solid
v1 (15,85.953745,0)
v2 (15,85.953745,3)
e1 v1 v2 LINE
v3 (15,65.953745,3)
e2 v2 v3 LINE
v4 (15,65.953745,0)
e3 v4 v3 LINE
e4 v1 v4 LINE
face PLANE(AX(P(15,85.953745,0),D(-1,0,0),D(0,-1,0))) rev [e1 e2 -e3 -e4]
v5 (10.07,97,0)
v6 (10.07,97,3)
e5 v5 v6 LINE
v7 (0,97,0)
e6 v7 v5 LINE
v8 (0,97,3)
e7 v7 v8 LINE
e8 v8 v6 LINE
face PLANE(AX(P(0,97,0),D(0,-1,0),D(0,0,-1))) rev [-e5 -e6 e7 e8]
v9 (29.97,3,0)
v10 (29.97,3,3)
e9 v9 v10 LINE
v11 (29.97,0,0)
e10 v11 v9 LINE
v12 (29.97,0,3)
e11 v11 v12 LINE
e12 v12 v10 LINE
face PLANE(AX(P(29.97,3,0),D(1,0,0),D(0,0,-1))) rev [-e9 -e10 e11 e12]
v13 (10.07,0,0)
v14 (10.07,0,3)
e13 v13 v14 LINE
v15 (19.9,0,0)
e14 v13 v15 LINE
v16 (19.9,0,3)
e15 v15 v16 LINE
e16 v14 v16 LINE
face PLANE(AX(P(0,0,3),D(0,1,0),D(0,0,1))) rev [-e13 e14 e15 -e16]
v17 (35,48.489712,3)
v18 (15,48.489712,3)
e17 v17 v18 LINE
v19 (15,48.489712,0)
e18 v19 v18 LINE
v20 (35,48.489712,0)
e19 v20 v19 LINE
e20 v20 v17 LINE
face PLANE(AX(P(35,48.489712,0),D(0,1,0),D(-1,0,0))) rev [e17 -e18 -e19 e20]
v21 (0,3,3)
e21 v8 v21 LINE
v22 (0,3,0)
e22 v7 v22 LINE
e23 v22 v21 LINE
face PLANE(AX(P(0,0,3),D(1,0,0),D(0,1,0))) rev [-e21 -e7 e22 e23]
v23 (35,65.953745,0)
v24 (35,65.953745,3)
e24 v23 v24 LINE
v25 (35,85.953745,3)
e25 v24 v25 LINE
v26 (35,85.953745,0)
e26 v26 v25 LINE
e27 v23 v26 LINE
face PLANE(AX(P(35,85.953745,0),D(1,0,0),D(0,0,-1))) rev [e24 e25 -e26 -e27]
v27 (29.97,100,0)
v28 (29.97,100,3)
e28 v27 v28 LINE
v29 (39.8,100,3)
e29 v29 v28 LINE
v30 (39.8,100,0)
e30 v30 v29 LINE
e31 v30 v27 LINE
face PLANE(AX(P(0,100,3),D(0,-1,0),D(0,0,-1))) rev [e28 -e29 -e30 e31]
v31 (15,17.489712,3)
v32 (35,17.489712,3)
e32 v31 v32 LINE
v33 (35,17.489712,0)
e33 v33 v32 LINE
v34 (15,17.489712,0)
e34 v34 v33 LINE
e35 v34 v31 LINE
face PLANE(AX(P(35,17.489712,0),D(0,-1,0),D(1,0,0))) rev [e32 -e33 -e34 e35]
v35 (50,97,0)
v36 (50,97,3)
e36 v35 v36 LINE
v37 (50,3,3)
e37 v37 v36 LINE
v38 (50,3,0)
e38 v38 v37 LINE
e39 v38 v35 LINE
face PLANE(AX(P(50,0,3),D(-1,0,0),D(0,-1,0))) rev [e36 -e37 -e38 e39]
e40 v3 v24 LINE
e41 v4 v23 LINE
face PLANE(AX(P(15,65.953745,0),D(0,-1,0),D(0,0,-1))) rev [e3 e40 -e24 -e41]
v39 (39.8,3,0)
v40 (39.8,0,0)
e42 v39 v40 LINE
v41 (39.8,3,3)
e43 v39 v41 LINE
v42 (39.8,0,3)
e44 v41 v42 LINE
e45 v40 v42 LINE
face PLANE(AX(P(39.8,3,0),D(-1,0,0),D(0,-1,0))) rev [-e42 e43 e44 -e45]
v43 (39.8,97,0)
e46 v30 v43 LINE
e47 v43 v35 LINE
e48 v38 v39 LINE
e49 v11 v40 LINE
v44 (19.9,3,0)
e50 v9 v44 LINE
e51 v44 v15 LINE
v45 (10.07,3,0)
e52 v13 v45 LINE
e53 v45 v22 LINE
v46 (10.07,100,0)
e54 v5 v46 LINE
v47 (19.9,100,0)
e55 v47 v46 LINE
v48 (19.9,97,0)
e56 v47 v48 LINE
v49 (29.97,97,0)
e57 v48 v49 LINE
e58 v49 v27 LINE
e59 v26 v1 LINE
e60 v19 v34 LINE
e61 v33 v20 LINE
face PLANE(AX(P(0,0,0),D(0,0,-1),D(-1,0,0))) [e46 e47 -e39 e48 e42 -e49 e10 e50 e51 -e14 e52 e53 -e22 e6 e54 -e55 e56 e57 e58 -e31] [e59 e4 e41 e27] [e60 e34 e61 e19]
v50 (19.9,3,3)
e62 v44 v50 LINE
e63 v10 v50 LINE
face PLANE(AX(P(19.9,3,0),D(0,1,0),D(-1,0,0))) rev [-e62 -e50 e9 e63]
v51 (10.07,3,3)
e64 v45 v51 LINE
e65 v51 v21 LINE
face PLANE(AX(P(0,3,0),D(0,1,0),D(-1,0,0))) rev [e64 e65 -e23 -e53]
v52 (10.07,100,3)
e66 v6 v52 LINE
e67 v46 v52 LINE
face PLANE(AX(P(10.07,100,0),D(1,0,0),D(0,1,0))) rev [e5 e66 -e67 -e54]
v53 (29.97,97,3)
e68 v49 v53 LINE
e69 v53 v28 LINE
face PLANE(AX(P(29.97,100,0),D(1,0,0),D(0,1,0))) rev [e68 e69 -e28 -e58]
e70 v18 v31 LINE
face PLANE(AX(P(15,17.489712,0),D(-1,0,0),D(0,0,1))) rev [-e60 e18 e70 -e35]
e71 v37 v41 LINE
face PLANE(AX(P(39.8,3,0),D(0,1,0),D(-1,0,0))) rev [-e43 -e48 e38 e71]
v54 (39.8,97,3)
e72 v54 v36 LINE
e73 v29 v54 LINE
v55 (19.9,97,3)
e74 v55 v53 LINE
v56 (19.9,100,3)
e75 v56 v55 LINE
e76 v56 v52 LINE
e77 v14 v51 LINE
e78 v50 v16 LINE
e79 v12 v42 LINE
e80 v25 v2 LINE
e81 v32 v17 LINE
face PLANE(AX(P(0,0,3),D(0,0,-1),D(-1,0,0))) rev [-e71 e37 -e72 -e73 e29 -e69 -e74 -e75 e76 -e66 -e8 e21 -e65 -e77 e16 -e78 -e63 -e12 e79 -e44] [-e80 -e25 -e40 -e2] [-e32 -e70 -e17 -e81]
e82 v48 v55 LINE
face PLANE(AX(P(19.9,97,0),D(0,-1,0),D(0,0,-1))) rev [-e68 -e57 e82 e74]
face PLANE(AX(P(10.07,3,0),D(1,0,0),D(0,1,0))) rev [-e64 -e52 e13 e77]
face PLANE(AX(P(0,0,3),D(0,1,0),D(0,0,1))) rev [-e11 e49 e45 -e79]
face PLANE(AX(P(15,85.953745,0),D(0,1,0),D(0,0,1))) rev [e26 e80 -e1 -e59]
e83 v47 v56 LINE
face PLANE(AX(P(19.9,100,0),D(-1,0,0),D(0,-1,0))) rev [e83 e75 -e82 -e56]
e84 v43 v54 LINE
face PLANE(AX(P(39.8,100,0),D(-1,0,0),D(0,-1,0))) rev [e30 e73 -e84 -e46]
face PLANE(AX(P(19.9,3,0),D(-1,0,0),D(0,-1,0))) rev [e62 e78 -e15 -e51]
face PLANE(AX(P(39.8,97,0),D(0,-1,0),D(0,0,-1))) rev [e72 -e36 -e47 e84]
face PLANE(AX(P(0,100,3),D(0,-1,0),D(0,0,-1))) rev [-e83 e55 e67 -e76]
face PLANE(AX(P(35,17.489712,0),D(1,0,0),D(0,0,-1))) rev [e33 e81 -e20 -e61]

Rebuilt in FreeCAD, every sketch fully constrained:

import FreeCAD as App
import Part
import Sketcher

doc = App.newDocument("Part")
body = doc.addObject("PartDesign::Body", "Body")

# Sketch on XY plane
sketch1 = body.newObject("Sketcher::SketchObject", "Sketch")
sketch1.AttachmentSupport = (doc.getObject("XY_Plane"), [""])
sketch1.MapMode = "FlatFace"
sketch1.addGeometry([
    Part.LineSegment(App.Vector(0, 100, 0), App.Vector(0, 0, 0)),
    Part.LineSegment(App.Vector(0, 0, 0), App.Vector(50, 0, 0)),
    Part.LineSegment(App.Vector(50, 0, 0), App.Vector(50, 100, 0)),
    Part.LineSegment(App.Vector(50, 100, 0), App.Vector(0, 100, 0)),
], False)
sketch1.addConstraint([
    Sketcher.Constraint("Coincident", 0, 2, 1, 1),
    Sketcher.Constraint("Coincident", 1, 2, 2, 1),
    Sketcher.Constraint("Coincident", 2, 2, 3, 1),
    Sketcher.Constraint("Coincident", 3, 2, 0, 1),
    Sketcher.Constraint("Vertical", 0),
    Sketcher.Constraint("Horizontal", 1),
    Sketcher.Constraint("Vertical", 2),
    Sketcher.Constraint("Horizontal", 3),
    Sketcher.Constraint("Coincident", 0, 2, -1, 1),
    Sketcher.Constraint("DistanceX", 1, 1, 1, 2, 50.0),
    Sketcher.Constraint("DistanceY", 0, 2, 0, 1, 100.0),
])
pad1 = body.newObject("PartDesign::Pad", "Pad")
pad1.Profile = sketch1
pad1.Length = 3

# Sketch on XY plane
sketch2 = body.newObject("Sketcher::SketchObject", "Sketch001")
sketch2.AttachmentSupport = (doc.getObject("XY_Plane"), [""])
sketch2.MapMode = "FlatFace"
sketch2.AttachmentOffset = App.Placement(App.Vector(0, 0, 3), App.Rotation())
sketch2.addGeometry([
    Part.LineSegment(App.Vector(15, 86, 0), App.Vector(15, 66, 0)),  # 0
    Part.LineSegment(App.Vector(15, 66, 0), App.Vector(35, 66, 0)),  # 1
    Part.LineSegment(App.Vector(35, 66, 0), App.Vector(35, 86, 0)),  # 2
    Part.LineSegment(App.Vector(35, 86, 0), App.Vector(15, 86, 0)),  # 3
    Part.LineSegment(App.Vector(15, 48, 0), App.Vector(15, 17, 0)),  # 4
    Part.LineSegment(App.Vector(15, 17, 0), App.Vector(35, 17, 0)),  # 5
    Part.LineSegment(App.Vector(35, 17, 0), App.Vector(35, 48, 0)),  # 6
    Part.LineSegment(App.Vector(35, 48, 0), App.Vector(15, 48, 0)),  # 7
], False)
sketch2.addConstraint([
    Sketcher.Constraint("Coincident", 0, 2, 1, 1),
    Sketcher.Constraint("Coincident", 1, 2, 2, 1),
    Sketcher.Constraint("Coincident", 2, 2, 3, 1),
    Sketcher.Constraint("Coincident", 3, 2, 0, 1),
    Sketcher.Constraint("Coincident", 4, 2, 5, 1),
    Sketcher.Constraint("Coincident", 5, 2, 6, 1),
    Sketcher.Constraint("Coincident", 6, 2, 7, 1),
    Sketcher.Constraint("Coincident", 7, 2, 4, 1),
    Sketcher.Constraint("Vertical", 0),
    Sketcher.Constraint("Horizontal", 1),
    Sketcher.Constraint("Vertical", 2),
    Sketcher.Constraint("Horizontal", 3),
    Sketcher.Constraint("Vertical", 4),
    Sketcher.Constraint("Horizontal", 5),
    Sketcher.Constraint("Vertical", 6),
    Sketcher.Constraint("Horizontal", 7),
    Sketcher.Constraint("Vertical", 3, 2, 4, 2),
    Sketcher.Constraint("Vertical", 2, 2, 5, 2),
    Sketcher.Constraint("Equal", 7, 0),
    Sketcher.Constraint("DistanceX", 1, 1, 1, 2, 20.0),
    Sketcher.Constraint("DistanceY", 4, 2, 4, 1, 31.0),
    Sketcher.Constraint("DistanceX", -1, 1, 0, 2, 15.0),
    Sketcher.Constraint("DistanceY", -1, 1, 0, 2, 65.953745),
    Sketcher.Constraint("DistanceY", -1, 1, 4, 2, 17.489712),
])
pocket1 = body.newObject("PartDesign::Pocket", "Pocket")
pocket1.Profile = sketch2
pocket1.Length = 3

# Sketch on XY plane
sketch3 = body.newObject("Sketcher::SketchObject", "Sketch002")
sketch3.AttachmentSupport = (doc.getObject("XY_Plane"), [""])
sketch3.MapMode = "FlatFace"
sketch3.AttachmentOffset = App.Placement(App.Vector(0, 0, 3), App.Rotation())
sketch3.addGeometry([
    Part.LineSegment(App.Vector(19.9, 100, 0), App.Vector(19.9, 97, 0)),  # 0
    Part.LineSegment(App.Vector(19.9, 97, 0), App.Vector(30, 97, 0)),  # 1
    Part.LineSegment(App.Vector(30, 97, 0), App.Vector(30, 100, 0)),  # 2
    Part.LineSegment(App.Vector(30, 100, 0), App.Vector(19.9, 100, 0)),  # 3
    Part.LineSegment(App.Vector(0, 100, 0), App.Vector(0, 97, 0)),  # 4
    Part.LineSegment(App.Vector(0, 97, 0), App.Vector(10.1, 97, 0)),  # 5
    Part.LineSegment(App.Vector(10.1, 97, 0), App.Vector(10.1, 100, 0)),  # 6
    Part.LineSegment(App.Vector(10.1, 100, 0), App.Vector(0, 100, 0)),  # 7
    Part.LineSegment(App.Vector(39.8, 100, 0), App.Vector(39.8, 97, 0)),  # 8
    Part.LineSegment(App.Vector(39.8, 97, 0), App.Vector(49.9, 97, 0)),  # 9
    Part.LineSegment(App.Vector(49.9, 97, 0), App.Vector(49.9, 100, 0)),  # 10
    Part.LineSegment(App.Vector(49.9, 100, 0), App.Vector(39.8, 100, 0)),  # 11
    Part.LineSegment(App.Vector(19.9, 3, 0), App.Vector(19.9, 0, 0)),  # 12
    Part.LineSegment(App.Vector(19.9, 0, 0), App.Vector(30, 0, 0)),  # 13
    Part.LineSegment(App.Vector(30, 0, 0), App.Vector(30, 3, 0)),  # 14
    Part.LineSegment(App.Vector(30, 3, 0), App.Vector(19.9, 3, 0)),  # 15
    Part.LineSegment(App.Vector(39.8, 3, 0), App.Vector(39.8, 0, 0)),  # 16
    Part.LineSegment(App.Vector(39.8, 0, 0), App.Vector(49.9, 0, 0)),  # 17
    Part.LineSegment(App.Vector(49.9, 0, 0), App.Vector(49.9, 3, 0)),  # 18
    Part.LineSegment(App.Vector(49.9, 3, 0), App.Vector(39.8, 3, 0)),  # 19
    Part.LineSegment(App.Vector(0, 3, 0), App.Vector(0, 0, 0)),  # 20
    Part.LineSegment(App.Vector(0, 0, 0), App.Vector(10.1, 0, 0)),  # 21
    Part.LineSegment(App.Vector(10.1, 0, 0), App.Vector(10.1, 3, 0)),  # 22
    Part.LineSegment(App.Vector(10.1, 3, 0), App.Vector(0, 3, 0)),  # 23
], False)
sketch3.addConstraint([
    Sketcher.Constraint("Coincident", 0, 2, 1, 1),
    Sketcher.Constraint("Coincident", 1, 2, 2, 1),
    Sketcher.Constraint("Coincident", 2, 2, 3, 1),
    Sketcher.Constraint("Coincident", 3, 2, 0, 1),
    Sketcher.Constraint("Coincident", 4, 2, 5, 1),
    Sketcher.Constraint("Coincident", 5, 2, 6, 1),
    Sketcher.Constraint("Coincident", 6, 2, 7, 1),
    Sketcher.Constraint("Coincident", 7, 2, 4, 1),
    Sketcher.Constraint("Coincident", 8, 2, 9, 1),
    Sketcher.Constraint("Coincident", 9, 2, 10, 1),
    Sketcher.Constraint("Coincident", 10, 2, 11, 1),
    Sketcher.Constraint("Coincident", 11, 2, 8, 1),
    Sketcher.Constraint("Coincident", 12, 2, 13, 1),
    Sketcher.Constraint("Coincident", 13, 2, 14, 1),
    Sketcher.Constraint("Coincident", 14, 2, 15, 1),
    Sketcher.Constraint("Coincident", 15, 2, 12, 1),
    Sketcher.Constraint("Coincident", 16, 2, 17, 1),
    Sketcher.Constraint("Coincident", 17, 2, 18, 1),
    Sketcher.Constraint("Coincident", 18, 2, 19, 1),
    Sketcher.Constraint("Coincident", 19, 2, 16, 1),
    Sketcher.Constraint("Coincident", 20, 2, 21, 1),
    Sketcher.Constraint("Coincident", 21, 2, 22, 1),
    Sketcher.Constraint("Coincident", 22, 2, 23, 1),
    Sketcher.Constraint("Coincident", 23, 2, 20, 1),
    Sketcher.Constraint("Vertical", 0),
    Sketcher.Constraint("Horizontal", 1),
    Sketcher.Constraint("Vertical", 2),
    Sketcher.Constraint("Horizontal", 3),
    Sketcher.Constraint("Vertical", 4),
    Sketcher.Constraint("Horizontal", 5),
    Sketcher.Constraint("Vertical", 6),
    Sketcher.Constraint("Horizontal", 7),
    Sketcher.Constraint("Vertical", 8),
    Sketcher.Constraint("Horizontal", 9),
    Sketcher.Constraint("Vertical", 10),
    Sketcher.Constraint("Horizontal", 11),
    Sketcher.Constraint("Vertical", 12),
    Sketcher.Constraint("Horizontal", 13),
    Sketcher.Constraint("Vertical", 14),
    Sketcher.Constraint("Horizontal", 15),
    Sketcher.Constraint("Vertical", 16),
    Sketcher.Constraint("Horizontal", 17),
    Sketcher.Constraint("Vertical", 18),
    Sketcher.Constraint("Horizontal", 19),
    Sketcher.Constraint("Vertical", 20),
    Sketcher.Constraint("Horizontal", 21),
    Sketcher.Constraint("Vertical", 22),
    Sketcher.Constraint("Horizontal", 23),
    Sketcher.Constraint("Coincident", 20, 2, -1, 1),
    Sketcher.Constraint("PointOnObject", 4, 2, -2),
    Sketcher.Constraint("PointOnObject", 12, 2, -1),
    Sketcher.Constraint("PointOnObject", 16, 2, -1),
    Sketcher.Constraint("Horizontal", 1, 2, 4, 2),
    Sketcher.Constraint("Horizontal", 3, 2, 6, 2),
    Sketcher.Constraint("Horizontal", 5, 2, 8, 2),
    Sketcher.Constraint("Horizontal", 7, 2, 10, 2),
    Sketcher.Constraint("Horizontal", 15, 2, 18, 2),
    Sketcher.Constraint("Horizontal", 19, 2, 22, 2),
    Sketcher.Constraint("Vertical", 3, 2, 12, 2),
    Sketcher.Constraint("Vertical", 2, 2, 13, 2),
    Sketcher.Constraint("Vertical", 11, 2, 16, 2),
    Sketcher.Constraint("Vertical", 10, 2, 17, 2),
    Sketcher.Constraint("Vertical", 6, 2, 21, 2),
    Sketcher.Constraint("Equal", 3, 5),
    Sketcher.Constraint("Equal", 7, 9),
    Sketcher.Constraint("Equal", 10, 12),
    Sketcher.Constraint("DistanceY", 0, 2, 0, 1, 3.0),
    Sketcher.Constraint("DistanceY", -1, 1, 0, 2, 97.0),
    Sketcher.Constraint("DistanceX", 1, 1, 1, 2, 10.07),
    Sketcher.Constraint("DistanceX", -1, 1, 0, 2, 19.9),
    Sketcher.Constraint("DistanceX", -1, 1, 8, 2, 39.8),
])
pocket2 = body.newObject("PartDesign::Pocket", "Pocket001")
pocket2.Profile = sketch3
pocket2.Length = 3

# Sketch on XY plane
sketch4 = body.newObject("Sketcher::SketchObject", "Sketch003")
sketch4.AttachmentSupport = (doc.getObject("XY_Plane"), [""])
sketch4.MapMode = "FlatFace"
sketch4.AttachmentOffset = App.Placement(App.Vector(0, 0, 3), App.Rotation())
sketch4.addGeometry([
    Part.LineSegment(App.Vector(49.87, 100, 0), App.Vector(49.87, 97, 0)),  # 0
    Part.LineSegment(App.Vector(49.87, 97, 0), App.Vector(50, 97, 0)),  # 1
    Part.LineSegment(App.Vector(50, 97, 0), App.Vector(50, 100, 0)),  # 2
    Part.LineSegment(App.Vector(50, 100, 0), App.Vector(49.87, 100, 0)),  # 3
    Part.LineSegment(App.Vector(49.87, 3, 0), App.Vector(49.87, 0, 0)),  # 4
    Part.LineSegment(App.Vector(49.87, 0, 0), App.Vector(50, 0, 0)),  # 5
    Part.LineSegment(App.Vector(50, 0, 0), App.Vector(50, 3, 0)),  # 6
    Part.LineSegment(App.Vector(50, 3, 0), App.Vector(49.87, 3, 0)),  # 7
], False)
sketch4.addConstraint([
    Sketcher.Constraint("Coincident", 0, 2, 1, 1),
    Sketcher.Constraint("Coincident", 1, 2, 2, 1),
    Sketcher.Constraint("Coincident", 2, 2, 3, 1),
    Sketcher.Constraint("Coincident", 3, 2, 0, 1),
    Sketcher.Constraint("Coincident", 4, 2, 5, 1),
    Sketcher.Constraint("Coincident", 5, 2, 6, 1),
    Sketcher.Constraint("Coincident", 6, 2, 7, 1),
    Sketcher.Constraint("Coincident", 7, 2, 4, 1),
    Sketcher.Constraint("Vertical", 0),
    Sketcher.Constraint("Horizontal", 1),
    Sketcher.Constraint("Vertical", 2),
    Sketcher.Constraint("Horizontal", 3),
    Sketcher.Constraint("Vertical", 4),
    Sketcher.Constraint("Horizontal", 5),
    Sketcher.Constraint("Vertical", 6),
    Sketcher.Constraint("Horizontal", 7),
    Sketcher.Constraint("PointOnObject", 4, 2, -1),
    Sketcher.Constraint("Vertical", 3, 2, 4, 2),
    Sketcher.Constraint("Vertical", 2, 2, 5, 2),
    Sketcher.Constraint("Equal", 2, 4),
    Sketcher.Constraint("DistanceY", 0, 2, 0, 1, 3.0),
    Sketcher.Constraint("DistanceY", -1, 1, 0, 2, 97.0),
    Sketcher.Constraint("DistanceX", -1, 1, 1, 2, 50.0),
    Sketcher.Constraint("DistanceX", 1, 1, 1, 2, 0.13),
])
pocket3 = body.newObject("PartDesign::Pocket", "Pocket002")
pocket3.Profile = sketch4
pocket3.Length = 3

doc.recompute()
